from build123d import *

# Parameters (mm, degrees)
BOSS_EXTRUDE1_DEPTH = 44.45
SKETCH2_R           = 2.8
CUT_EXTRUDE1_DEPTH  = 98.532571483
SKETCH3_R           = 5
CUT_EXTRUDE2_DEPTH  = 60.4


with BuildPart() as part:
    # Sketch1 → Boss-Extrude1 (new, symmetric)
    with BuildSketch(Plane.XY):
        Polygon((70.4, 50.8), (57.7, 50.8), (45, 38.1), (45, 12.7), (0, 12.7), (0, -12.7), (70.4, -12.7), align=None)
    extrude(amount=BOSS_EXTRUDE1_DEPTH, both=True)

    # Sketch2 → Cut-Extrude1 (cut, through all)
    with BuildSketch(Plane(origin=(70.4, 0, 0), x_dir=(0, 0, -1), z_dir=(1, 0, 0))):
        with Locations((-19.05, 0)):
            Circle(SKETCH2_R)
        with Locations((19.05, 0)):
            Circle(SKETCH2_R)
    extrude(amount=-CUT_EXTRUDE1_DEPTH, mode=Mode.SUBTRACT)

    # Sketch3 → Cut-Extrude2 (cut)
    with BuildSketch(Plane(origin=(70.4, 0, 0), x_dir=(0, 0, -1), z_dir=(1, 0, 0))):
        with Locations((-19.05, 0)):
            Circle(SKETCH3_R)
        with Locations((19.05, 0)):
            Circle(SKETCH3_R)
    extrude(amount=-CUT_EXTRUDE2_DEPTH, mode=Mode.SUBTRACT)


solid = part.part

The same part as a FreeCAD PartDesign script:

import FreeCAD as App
import Part
import Sketcher

V = App.Vector
Q = App.Units.Quantity


def add_polygon(sketch, points):
    """Adds a closed chain of lines whose ends are joined by coincident constraints."""
    first, n = sketch.GeometryCount, len(points)
    for a, b in zip(points, points[1:] + points[:1]):
        sketch.addGeometry(Part.LineSegment(App.Vector(*a, 0), App.Vector(*b, 0)), False)
    for i in range(n):
        sketch.addConstraint(Sketcher.Constraint("Coincident", first + i, 2, first + (i + 1) % n, 1))

doc = App.newDocument("Part")
body = doc.addObject("PartDesign::Body", "Body")

sketch1 = body.newObject("Sketcher::SketchObject", "Sketch")
sketch1.AttachmentSupport = (doc.getObject("XY_Plane"), [""])
sketch1.MapMode = "FlatFace"
add_polygon(sketch1, [(70, 51), (58, 51), (45, 38), (45, 13), (0, 13), (0, -13), (70, -13)])
sketch1.addConstraint(Sketcher.Constraint("Horizontal", 0))
sketch1.addConstraint(Sketcher.Constraint("Vertical", 2))
sketch1.addConstraint(Sketcher.Constraint("Horizontal", 3))
sketch1.addConstraint(Sketcher.Constraint("Vertical", 4))
sketch1.addConstraint(Sketcher.Constraint("Horizontal", 5))
sketch1.addConstraint(Sketcher.Constraint("Vertical", 6))
sketch1.addConstraint(Sketcher.Constraint("Symmetric", 3, 2, 4, 2, -1, 1))
sketch1.addConstraint(Sketcher.Constraint("Equal", 2, 4))
sketch1.addConstraint(Sketcher.Constraint("DistanceX", 3, 2, 3, 1, 45.0))
sketch1.addConstraint(Sketcher.Constraint("Angle", 1, Q("-135 deg")))
sketch1.addConstraint(Sketcher.Constraint("DistanceX", 0, 2, 0, 1, 12.7))
sketch1.addConstraint(Sketcher.Constraint("DistanceX", 5, 1, 5, 2, 70.4))
sketch1.addConstraint(Sketcher.Constraint("DistanceY", 2, 2, 2, 1, 25.4))
pad1 = body.newObject("PartDesign::Pad", "Pad")
pad1.Profile = sketch1
pad1.Length = 88.9
pad1.Midplane = True

sketch2 = body.newObject("Sketcher::SketchObject", "Sketch001")
sketch2.AttachmentSupport = (doc.getObject("YZ_Plane"), [""])
sketch2.MapMode = "FlatFace"
sketch2.AttachmentOffset = App.Placement(V(0, 0, 70.4), App.Rotation())
sketch2.addGeometry(Part.Circle(V(0, 19.1, 0), V(0, 0, 1), 2.8), False)
sketch2.addGeometry(Part.Circle(V(0, -19.1, 0), V(0, 0, 1), 2.8), False)
sketch2.addConstraint(Sketcher.Constraint("Equal", 0, 1))
sketch2.addConstraint(Sketcher.Constraint("Symmetric", 0, 3, 1, 3, -1, 1))
sketch2.addConstraint(Sketcher.Constraint("PointOnObject", 0, 3, -2))
sketch2.addConstraint(Sketcher.Constraint("Diameter", 0, 5.6))
sketch2.addConstraint(Sketcher.Constraint("DistanceY", 1, 3, 0, 3, 38.1))
pocket1 = body.newObject("PartDesign::Pocket", "Pocket")
pocket1.Profile = sketch2
pocket1.Type = "ThroughAll"

sketch3 = body.newObject("Sketcher::SketchObject", "Sketch002")
sketch3.AttachmentSupport = (doc.getObject("YZ_Plane"), [""])
sketch3.MapMode = "FlatFace"
sketch3.AttachmentOffset = App.Placement(V(0, 0, 70.4), App.Rotation())
sketch3.addGeometry(Part.Circle(V(0, 19, 0), V(0, 0, 1), 5), False)
sketch3.addGeometry(Part.Circle(V(0, -19, 0), V(0, 0, 1), 5), False)
sketch3.addConstraint(Sketcher.Constraint("Equal", 0, 1))
sketch3.addConstraint(Sketcher.Constraint("Symmetric", 0, 3, 1, 3, -1, 1))
sketch3.addConstraint(Sketcher.Constraint("PointOnObject", 0, 3, -2))
sketch3.addConstraint(Sketcher.Constraint("Diameter", 0, 10.0))
sketch3.addConstraint(Sketcher.Constraint("DistanceY", 1, 3, 0, 3, 38.1))
pocket2 = body.newObject("PartDesign::Pocket", "Pocket001")
pocket2.Profile = sketch3
pocket2.Length = 60.4

doc.recompute()
